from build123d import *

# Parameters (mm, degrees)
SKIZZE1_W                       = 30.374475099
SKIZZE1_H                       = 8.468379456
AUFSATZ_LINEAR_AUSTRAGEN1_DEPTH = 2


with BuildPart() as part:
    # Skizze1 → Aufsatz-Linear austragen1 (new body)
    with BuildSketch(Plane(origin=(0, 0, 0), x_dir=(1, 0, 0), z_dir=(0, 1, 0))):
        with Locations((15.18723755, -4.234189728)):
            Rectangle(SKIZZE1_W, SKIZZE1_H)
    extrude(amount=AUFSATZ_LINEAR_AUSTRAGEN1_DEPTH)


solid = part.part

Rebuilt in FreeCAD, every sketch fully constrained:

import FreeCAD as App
import Part
import Sketcher
Q = App.Units.Quantity

doc = App.newDocument("Part")
body = doc.addObject("PartDesign::Body", "Body")

sketch1 = body.newObject("Sketcher::SketchObject", "Sketch")
sketch1.AttachmentSupport = (doc.getObject("XZ_Plane"), [""])
sketch1.MapMode = "FlatFace"
sketch1.addGeometry([
    Part.LineSegment(App.Vector(0, 0, 0), App.Vector(0, 8, 0)),
    Part.LineSegment(App.Vector(0, 8, 0), App.Vector(30, 8, 0)),
    Part.LineSegment(App.Vector(30, 8, 0), App.Vector(30, 0, 0)),
    Part.LineSegment(App.Vector(30, 0, 0), App.Vector(0, 0, 0)),
], False)
sketch1.addConstraint([
    Sketcher.Constraint("Coincident", 0, 2, 1, 1),
    Sketcher.Constraint("Coincident", 1, 2, 2, 1),
    Sketcher.Constraint("Coincident", 2, 2, 3, 1),
    Sketcher.Constraint("Coincident", 3, 2, 0, 1),
    Sketcher.Constraint("Vertical", 0),
    Sketcher.Constraint("Horizontal", 1),
    Sketcher.Constraint("Vertical", 2),
    Sketcher.Constraint("Horizontal", 3),
    Sketcher.Constraint("Coincident", 3, 2, -1, 1),
    Sketcher.Constraint("DistanceY", 0, 1, 0, 2, Q("8.468379 mm")),
    Sketcher.Constraint("DistanceX", 1, 1, 1, 2, Q("30.374475 mm")),
])
pad1 = body.newObject("PartDesign::Pad", "Pad")
pad1.Profile = sketch1
pad1.Length = 2
pad1.Reversed = True

doc.recompute()
